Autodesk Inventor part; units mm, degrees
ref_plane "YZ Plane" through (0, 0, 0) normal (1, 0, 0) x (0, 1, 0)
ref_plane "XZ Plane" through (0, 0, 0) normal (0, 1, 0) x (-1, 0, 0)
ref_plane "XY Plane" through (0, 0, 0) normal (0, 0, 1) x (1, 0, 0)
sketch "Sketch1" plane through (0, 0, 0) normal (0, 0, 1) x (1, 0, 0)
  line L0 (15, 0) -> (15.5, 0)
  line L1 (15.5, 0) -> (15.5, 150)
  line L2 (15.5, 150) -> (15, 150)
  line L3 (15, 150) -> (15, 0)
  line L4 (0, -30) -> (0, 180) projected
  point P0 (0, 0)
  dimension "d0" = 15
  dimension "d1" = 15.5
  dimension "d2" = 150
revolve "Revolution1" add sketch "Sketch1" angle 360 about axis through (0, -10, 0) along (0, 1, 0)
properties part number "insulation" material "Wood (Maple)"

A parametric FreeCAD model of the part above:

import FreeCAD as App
import Part
import Sketcher

V = App.Vector
Q = App.Units.Quantity

doc = App.newDocument("Part")
body = doc.addObject("PartDesign::Body", "Body")

sketch1 = body.newObject("Sketcher::SketchObject", "Sketch")
sketch1.AttachmentSupport = (doc.getObject("XY_Plane"), [""])
sketch1.MapMode = "FlatFace"
sketch1.addGeometry([
    Part.LineSegment(V(15, 150, 0), V(15, 0, 0)),
    Part.LineSegment(V(15, 0, 0), V(15.5, 0, 0)),
    Part.LineSegment(V(15.5, 0, 0), V(15.5, 150, 0)),
    Part.LineSegment(V(15.5, 150, 0), V(15, 150, 0)),
], False)
sketch1.addConstraint([
    Sketcher.Constraint("Coincident", 0, 2, 1, 1),
    Sketcher.Constraint("Coincident", 1, 2, 2, 1),
    Sketcher.Constraint("Coincident", 2, 2, 3, 1),
    Sketcher.Constraint("Coincident", 3, 2, 0, 1),
    Sketcher.Constraint("Vertical", 0),
    Sketcher.Constraint("Horizontal", 1),
    Sketcher.Constraint("Vertical", 2),
    Sketcher.Constraint("Horizontal", 3),
    Sketcher.Constraint("PointOnObject", 0, 2, -1),
    Sketcher.Constraint("DistanceY", 0, 2, 0, 1, Q("150 mm")),
    Sketcher.Constraint("DistanceX", -1, 1, 0, 2, Q("15 mm")),
    Sketcher.Constraint("DistanceX", -1, 1, 1, 2, Q("15.5 mm")),
])
revolution = body.newObject("PartDesign::Revolution", "Revolution")
revolution.Profile = sketch1
revolution.ReferenceAxis = (sketch1, ["V_Axis"])
revolution.Angle = 360

doc.recompute()
